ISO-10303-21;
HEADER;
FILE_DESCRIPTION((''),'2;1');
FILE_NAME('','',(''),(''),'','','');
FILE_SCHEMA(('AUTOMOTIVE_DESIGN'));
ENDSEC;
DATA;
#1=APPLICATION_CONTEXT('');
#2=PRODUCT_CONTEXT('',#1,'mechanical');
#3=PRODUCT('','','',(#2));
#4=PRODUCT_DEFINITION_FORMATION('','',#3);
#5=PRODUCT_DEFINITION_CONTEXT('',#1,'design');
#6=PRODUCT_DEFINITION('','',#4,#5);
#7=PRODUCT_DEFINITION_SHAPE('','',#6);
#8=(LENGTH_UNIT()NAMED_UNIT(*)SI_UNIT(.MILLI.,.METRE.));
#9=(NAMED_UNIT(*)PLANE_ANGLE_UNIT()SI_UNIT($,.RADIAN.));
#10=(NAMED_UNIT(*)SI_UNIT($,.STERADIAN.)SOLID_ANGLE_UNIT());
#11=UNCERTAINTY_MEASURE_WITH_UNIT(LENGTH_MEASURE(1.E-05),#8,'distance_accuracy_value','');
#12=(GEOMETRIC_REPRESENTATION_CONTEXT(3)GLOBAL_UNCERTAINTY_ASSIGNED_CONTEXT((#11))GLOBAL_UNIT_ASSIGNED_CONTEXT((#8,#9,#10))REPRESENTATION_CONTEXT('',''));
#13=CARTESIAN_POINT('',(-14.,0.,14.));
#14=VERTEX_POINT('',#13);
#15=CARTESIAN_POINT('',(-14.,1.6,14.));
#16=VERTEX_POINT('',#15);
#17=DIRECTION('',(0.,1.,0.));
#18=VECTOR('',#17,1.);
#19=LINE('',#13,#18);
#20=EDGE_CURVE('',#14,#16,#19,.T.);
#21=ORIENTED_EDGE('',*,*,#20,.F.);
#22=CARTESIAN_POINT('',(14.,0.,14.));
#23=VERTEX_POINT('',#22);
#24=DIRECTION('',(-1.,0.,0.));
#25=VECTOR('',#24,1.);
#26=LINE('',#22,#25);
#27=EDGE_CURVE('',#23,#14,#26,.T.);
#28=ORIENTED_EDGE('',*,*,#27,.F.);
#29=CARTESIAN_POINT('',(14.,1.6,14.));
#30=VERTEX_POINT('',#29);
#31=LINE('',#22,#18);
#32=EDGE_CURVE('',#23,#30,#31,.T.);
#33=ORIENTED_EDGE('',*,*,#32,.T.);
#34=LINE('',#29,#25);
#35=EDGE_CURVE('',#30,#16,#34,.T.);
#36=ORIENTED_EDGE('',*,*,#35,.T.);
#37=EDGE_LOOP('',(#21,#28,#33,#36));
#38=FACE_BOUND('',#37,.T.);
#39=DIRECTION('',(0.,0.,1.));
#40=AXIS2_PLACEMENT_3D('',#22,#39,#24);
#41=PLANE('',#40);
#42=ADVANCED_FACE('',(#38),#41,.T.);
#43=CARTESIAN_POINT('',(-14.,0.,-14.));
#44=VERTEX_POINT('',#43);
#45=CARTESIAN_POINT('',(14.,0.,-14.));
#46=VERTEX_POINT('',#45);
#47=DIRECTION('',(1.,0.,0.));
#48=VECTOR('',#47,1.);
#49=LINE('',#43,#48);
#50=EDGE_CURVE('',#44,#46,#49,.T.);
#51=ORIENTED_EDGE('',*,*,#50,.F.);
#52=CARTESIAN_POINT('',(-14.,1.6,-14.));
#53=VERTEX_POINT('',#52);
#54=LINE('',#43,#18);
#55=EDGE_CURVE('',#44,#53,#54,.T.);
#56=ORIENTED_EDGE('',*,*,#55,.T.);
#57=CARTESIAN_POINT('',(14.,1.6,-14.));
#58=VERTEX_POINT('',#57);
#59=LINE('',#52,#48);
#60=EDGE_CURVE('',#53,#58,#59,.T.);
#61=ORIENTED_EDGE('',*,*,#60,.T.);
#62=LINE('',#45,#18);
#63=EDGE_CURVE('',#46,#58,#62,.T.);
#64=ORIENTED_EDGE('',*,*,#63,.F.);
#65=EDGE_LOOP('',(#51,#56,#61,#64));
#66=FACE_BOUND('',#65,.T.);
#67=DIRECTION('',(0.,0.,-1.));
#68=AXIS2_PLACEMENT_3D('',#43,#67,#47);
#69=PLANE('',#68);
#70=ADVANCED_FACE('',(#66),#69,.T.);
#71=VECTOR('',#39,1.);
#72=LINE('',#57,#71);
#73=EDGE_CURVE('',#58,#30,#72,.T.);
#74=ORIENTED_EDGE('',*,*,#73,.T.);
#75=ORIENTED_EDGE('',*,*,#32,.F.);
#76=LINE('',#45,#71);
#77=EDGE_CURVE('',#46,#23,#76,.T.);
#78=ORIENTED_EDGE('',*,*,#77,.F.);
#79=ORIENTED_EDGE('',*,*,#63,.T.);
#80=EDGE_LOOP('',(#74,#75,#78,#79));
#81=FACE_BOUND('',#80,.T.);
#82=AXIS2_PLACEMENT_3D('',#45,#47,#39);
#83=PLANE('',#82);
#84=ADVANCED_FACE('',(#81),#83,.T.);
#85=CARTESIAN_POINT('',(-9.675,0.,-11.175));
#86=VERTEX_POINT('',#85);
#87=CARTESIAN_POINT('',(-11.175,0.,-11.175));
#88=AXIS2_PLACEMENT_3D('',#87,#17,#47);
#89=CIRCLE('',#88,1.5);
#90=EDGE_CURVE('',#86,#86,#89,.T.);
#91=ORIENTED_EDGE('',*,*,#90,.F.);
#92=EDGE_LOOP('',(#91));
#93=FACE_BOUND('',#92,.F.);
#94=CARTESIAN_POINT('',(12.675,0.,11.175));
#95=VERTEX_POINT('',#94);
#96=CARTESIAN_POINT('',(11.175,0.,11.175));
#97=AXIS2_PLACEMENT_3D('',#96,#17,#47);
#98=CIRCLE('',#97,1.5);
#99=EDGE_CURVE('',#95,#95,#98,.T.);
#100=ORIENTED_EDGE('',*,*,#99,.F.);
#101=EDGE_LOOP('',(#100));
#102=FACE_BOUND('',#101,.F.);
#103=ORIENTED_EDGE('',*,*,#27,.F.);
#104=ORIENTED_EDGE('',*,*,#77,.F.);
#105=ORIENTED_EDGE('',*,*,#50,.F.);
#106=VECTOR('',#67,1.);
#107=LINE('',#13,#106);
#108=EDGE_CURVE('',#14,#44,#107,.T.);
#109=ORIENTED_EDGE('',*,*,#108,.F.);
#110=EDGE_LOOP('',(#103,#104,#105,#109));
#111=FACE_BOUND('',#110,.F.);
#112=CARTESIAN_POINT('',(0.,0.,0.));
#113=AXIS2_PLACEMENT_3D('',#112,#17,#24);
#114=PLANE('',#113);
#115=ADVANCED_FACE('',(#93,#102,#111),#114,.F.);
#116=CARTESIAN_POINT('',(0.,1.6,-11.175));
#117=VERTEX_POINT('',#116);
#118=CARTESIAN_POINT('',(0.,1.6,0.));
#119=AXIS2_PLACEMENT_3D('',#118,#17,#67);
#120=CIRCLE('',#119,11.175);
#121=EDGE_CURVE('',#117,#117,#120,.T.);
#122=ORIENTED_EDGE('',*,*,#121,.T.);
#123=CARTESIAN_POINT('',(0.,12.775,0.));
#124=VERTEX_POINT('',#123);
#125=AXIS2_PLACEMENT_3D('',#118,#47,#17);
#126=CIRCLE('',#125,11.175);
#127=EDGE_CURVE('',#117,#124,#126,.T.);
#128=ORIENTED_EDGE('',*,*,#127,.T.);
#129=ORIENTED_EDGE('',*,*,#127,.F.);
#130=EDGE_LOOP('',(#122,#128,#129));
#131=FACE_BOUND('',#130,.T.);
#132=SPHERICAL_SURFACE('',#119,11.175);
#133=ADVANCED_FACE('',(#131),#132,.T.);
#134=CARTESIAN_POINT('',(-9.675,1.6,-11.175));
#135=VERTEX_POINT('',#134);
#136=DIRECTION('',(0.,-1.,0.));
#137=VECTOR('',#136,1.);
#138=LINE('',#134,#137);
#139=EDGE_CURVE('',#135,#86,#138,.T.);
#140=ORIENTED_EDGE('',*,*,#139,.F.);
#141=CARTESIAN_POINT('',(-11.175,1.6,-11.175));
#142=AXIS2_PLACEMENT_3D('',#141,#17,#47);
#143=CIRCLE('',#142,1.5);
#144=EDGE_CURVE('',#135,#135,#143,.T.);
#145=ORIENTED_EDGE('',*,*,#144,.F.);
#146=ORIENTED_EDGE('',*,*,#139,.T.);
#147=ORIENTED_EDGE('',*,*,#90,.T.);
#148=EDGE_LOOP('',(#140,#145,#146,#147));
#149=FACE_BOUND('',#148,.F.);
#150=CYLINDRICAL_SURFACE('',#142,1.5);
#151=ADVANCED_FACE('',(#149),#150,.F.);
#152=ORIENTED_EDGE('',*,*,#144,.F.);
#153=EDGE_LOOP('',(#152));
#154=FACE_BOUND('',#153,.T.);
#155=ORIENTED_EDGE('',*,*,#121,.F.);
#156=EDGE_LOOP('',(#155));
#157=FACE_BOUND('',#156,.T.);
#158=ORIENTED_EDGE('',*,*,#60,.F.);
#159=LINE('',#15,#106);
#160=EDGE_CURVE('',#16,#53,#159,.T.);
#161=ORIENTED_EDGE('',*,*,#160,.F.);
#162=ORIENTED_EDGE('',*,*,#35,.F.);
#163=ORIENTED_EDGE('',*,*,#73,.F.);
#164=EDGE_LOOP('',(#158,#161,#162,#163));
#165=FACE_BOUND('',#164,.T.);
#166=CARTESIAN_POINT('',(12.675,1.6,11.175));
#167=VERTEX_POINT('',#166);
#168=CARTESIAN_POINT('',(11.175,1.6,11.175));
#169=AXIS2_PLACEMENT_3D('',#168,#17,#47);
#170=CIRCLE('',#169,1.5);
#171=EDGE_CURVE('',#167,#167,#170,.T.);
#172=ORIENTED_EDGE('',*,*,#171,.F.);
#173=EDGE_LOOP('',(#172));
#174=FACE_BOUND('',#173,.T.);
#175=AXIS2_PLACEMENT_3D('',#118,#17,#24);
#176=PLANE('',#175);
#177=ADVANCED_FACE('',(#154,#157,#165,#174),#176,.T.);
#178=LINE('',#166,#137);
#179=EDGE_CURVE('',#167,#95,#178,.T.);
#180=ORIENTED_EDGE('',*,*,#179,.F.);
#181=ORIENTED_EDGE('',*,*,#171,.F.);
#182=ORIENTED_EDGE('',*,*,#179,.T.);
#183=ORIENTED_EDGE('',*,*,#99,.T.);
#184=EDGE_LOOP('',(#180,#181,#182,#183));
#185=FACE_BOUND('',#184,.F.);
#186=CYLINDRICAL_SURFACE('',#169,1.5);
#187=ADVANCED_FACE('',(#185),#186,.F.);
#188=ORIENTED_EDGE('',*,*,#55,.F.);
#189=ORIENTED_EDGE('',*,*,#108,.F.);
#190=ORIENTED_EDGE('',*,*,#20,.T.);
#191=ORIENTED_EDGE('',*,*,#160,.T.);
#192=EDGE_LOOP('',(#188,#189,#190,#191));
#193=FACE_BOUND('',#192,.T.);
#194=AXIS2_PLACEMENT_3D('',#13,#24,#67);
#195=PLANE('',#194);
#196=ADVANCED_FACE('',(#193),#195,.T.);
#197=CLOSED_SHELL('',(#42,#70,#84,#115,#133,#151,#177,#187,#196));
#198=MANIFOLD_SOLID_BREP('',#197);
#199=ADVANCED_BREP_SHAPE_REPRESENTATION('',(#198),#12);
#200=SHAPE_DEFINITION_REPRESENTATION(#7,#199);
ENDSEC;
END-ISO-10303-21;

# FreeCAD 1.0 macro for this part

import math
import FreeCAD as App
import Part
import Sketcher
from FreeCAD import Vector

doc = App.newDocument("Part")
body = doc.addObject("PartDesign::Body", "Body")

sketch1 = body.newObject("Sketcher::SketchObject", "Sketch")
sketch1.AttachmentSupport = (doc.getObject("XZ_Plane"), [""])
sketch1.MapMode = "FlatFace"
sketch1.addGeometry(Part.LineSegment(Vector(-14, 14, 0), Vector(14, 14, 0)), False)
sketch1.addGeometry(Part.LineSegment(Vector(14, 14, 0), Vector(14, -14, 0)), False)
sketch1.addGeometry(Part.LineSegment(Vector(14, -14, 0), Vector(-14, -14, 0)), False)
sketch1.addGeometry(Part.LineSegment(Vector(-14, -14, 0), Vector(-14, 14, 0)), False)
sketch1.addConstraint(Sketcher.Constraint("Coincident", 0, 2, 1, 1))
sketch1.addConstraint(Sketcher.Constraint("Coincident", 1, 2, 2, 1))
sketch1.addConstraint(Sketcher.Constraint("Coincident", 2, 2, 3, 1))
sketch1.addConstraint(Sketcher.Constraint("Coincident", 3, 2, 0, 1))
sketch1.addConstraint(Sketcher.Constraint("Horizontal", 0))
sketch1.addConstraint(Sketcher.Constraint("Vertical", 1))
sketch1.addConstraint(Sketcher.Constraint("Horizontal", 2))
sketch1.addConstraint(Sketcher.Constraint("Vertical", 3))
sketch1.addConstraint(Sketcher.Constraint("Symmetric", 0, 2, 2, 2, -1, 1))
sketch1.addConstraint(Sketcher.Constraint("Equal", 2, 1))
sketch1.addConstraint(Sketcher.Constraint("DistanceX", 0, 1, 0, 2, 28.0))
pad1 = body.newObject("PartDesign::Pad", "Pad")
pad1.Profile = sketch1
pad1.Length = 1.6
pad1.Reversed = True

sketch2 = body.newObject("Sketcher::SketchObject", "Sketch001")
sketch2.AttachmentSupport = (doc.getObject("YZ_Plane"), [""])
sketch2.MapMode = "FlatFace"
sketch2.addGeometry(Part.LineSegment(Vector(13, 0, 0), Vector(2, 0, 0)), False)
sketch2.addGeometry(Part.LineSegment(Vector(2, 0, 0), Vector(2, -11, 0)), False)
sketch2.addGeometry(Part.ArcOfCircle(Part.Circle(Vector(2, 0, 0), Vector(0, 0, 1), 11), math.radians(-90), math.radians(0)), False)
sketch2.addConstraint(Sketcher.Constraint("Coincident", 0, 2, 1, 1))
sketch2.addConstraint(Sketcher.Constraint("Coincident", 1, 2, 2, 1))
sketch2.addConstraint(Sketcher.Constraint("Coincident", 2, 2, 0, 1))
sketch2.addConstraint(Sketcher.Constraint("Horizontal", 0))
sketch2.addConstraint(Sketcher.Constraint("Vertical", 1))
sketch2.addConstraint(Sketcher.Constraint("Coincident", 0, 2, 2, 3))
sketch2.addConstraint(Sketcher.Constraint("PointOnObject", 2, 3, -1))
sketch2.addConstraint(Sketcher.Constraint("Radius", 2, 11.175))
sketch2.addConstraint(Sketcher.Constraint("DistanceX", -1, 1, 2, 3, 1.6))
revolution = body.newObject("PartDesign::Revolution", "Revolution")
revolution.Profile = sketch2
revolution.ReferenceAxis = (sketch2, ["H_Axis"])
revolution.Angle = 360

sketch3 = body.newObject("Sketcher::SketchObject", "Sketch002")
sketch3.AttachmentSupport = (doc.getObject("XZ_Plane"), [""])
sketch3.MapMode = "FlatFace"
sketch3.AttachmentOffset = App.Placement(Vector(0, 0, -1.6), App.Rotation())
sketch3.addGeometry(Part.Circle(Vector(-11.2, -11.2, 0), Vector(0, 0, 1), 1.5), False)
sketch3.addGeometry(Part.Circle(Vector(11.2, 11.2, 0), Vector(0, 0, 1), 1.5), False)
sketch3.addConstraint(Sketcher.Constraint("Equal", 0, 1))
sketch3.addConstraint(Sketcher.Constraint("Symmetric", 0, 3, 1, 3, -1, 1))
sketch3.addConstraint(Sketcher.Constraint("Diameter", 0, 3.0))
sketch3.addConstraint(Sketcher.Constraint("DistanceX", 0, 3, 1, 3, 22.35))
sketch3.addConstraint(Sketcher.Constraint("DistanceY", 0, 3, 1, 3, 22.35))
pocket1 = body.newObject("PartDesign::Pocket", "Pocket")
pocket1.Profile = sketch3
pocket1.Length = 1.6
pocket1.Reversed = True

doc.recompute()
